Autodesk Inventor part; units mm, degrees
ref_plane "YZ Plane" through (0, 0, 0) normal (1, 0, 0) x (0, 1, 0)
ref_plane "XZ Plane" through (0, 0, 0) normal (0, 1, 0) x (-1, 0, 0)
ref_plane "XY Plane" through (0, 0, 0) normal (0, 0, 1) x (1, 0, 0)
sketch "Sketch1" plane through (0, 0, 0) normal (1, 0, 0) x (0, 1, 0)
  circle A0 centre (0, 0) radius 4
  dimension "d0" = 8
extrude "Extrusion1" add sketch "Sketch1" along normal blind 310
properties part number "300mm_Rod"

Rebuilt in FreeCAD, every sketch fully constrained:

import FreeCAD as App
import Part
import Sketcher

doc = App.newDocument("Part")
body = doc.addObject("PartDesign::Body", "Body")

# Sketch on YZ plane
sketch1 = body.newObject("Sketcher::SketchObject", "Sketch")
sketch1.AttachmentSupport = (doc.getObject("YZ_Plane"), [""])
sketch1.MapMode = "FlatFace"
sketch1.addGeometry(Part.Circle(App.Vector(0, 0, 0), App.Vector(0, 0, 1), 4), False)
sketch1.addConstraint([
    Sketcher.Constraint("Coincident", 0, 3, -1, 1),
    Sketcher.Constraint("Diameter", 0, 8.0),
])
pad1 = body.newObject("PartDesign::Pad", "Pad")
pad1.Profile = sketch1
pad1.Length = 310

doc.recompute()
